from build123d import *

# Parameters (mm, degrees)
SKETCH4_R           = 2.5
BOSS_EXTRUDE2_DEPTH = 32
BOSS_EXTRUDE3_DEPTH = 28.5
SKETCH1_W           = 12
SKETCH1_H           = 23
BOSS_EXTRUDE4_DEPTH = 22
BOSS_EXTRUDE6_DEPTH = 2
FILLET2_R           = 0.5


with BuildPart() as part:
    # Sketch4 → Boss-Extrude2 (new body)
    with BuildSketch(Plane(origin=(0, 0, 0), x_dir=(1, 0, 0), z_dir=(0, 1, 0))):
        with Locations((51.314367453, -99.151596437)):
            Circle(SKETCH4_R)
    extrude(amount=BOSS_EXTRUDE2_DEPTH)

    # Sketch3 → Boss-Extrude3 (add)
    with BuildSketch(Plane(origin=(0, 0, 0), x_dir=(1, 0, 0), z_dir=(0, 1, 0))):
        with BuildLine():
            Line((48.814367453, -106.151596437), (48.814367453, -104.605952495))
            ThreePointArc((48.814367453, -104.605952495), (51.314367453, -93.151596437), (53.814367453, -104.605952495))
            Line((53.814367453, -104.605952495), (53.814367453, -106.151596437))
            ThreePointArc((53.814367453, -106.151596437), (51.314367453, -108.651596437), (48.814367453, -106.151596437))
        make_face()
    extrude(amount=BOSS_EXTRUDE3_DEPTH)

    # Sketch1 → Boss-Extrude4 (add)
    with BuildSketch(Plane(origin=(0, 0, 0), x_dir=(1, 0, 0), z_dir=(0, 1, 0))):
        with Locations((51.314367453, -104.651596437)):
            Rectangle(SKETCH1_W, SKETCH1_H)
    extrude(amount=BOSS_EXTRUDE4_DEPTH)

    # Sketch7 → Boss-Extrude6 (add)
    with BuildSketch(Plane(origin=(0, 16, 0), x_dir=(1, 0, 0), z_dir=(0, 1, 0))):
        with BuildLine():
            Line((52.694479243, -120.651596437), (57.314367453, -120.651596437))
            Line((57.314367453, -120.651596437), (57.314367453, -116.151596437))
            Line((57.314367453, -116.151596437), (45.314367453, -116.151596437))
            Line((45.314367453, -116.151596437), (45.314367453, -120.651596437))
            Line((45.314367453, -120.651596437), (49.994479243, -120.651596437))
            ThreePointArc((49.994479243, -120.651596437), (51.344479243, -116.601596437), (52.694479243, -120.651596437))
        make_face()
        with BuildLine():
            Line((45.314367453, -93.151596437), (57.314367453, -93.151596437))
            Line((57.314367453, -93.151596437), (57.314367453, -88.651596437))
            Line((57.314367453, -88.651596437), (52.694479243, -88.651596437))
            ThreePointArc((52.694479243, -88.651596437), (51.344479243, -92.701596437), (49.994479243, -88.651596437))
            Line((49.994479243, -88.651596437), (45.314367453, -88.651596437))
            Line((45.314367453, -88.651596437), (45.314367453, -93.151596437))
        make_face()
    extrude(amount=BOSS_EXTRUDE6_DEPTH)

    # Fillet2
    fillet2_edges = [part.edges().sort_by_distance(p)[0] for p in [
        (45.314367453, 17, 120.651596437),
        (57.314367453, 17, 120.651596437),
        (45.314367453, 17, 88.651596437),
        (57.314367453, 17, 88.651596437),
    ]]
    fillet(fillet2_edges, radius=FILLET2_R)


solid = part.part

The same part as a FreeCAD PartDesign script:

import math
import FreeCAD as App
import Part
import Sketcher
Q = App.Units.Quantity


def edges_at(feature, points):
    """Names of the edges that pass closest to the given points."""
    edges = feature.Shape.Edges
    near = lambda p: min(range(len(edges)), key=lambda i: edges[i].distToShape(Part.Vertex(*p))[0])
    return sorted({f"Edge{near(p) + 1}" for p in points})

doc = App.newDocument("Part")
params = doc.addObject("Spreadsheet::Sheet", "Params")
for row, (alias, value) in enumerate([
    ("sketch1_diameter", "5 mm"),
    ("pad1_length", "32 mm"),
    ("sketch2_radius", "6 mm"),
    ("sketch2_radius2", "2.5 mm"),
    ("pad2_length", "28.5 mm"),
    ("sketch3_width", "12 mm"),
    ("sketch3_height", "23 mm"),
    ("pad3_length", "22 mm"),
    ("sketch4_width", "12 mm"),
    ("sketch4_radius", "2.25 mm"),
    ("sketch4_height", "4.5 mm"),
    ("pad4_length", "2 mm"),
    ("fillet_radius", "0.5 mm"),
], start=1):
    params.set(f"A{row}", alias)
    params.set(f"B{row}", "=" + value)
    params.setAlias(f"B{row}", alias)

body = doc.addObject("PartDesign::Body", "Body")

# Sketch on XZ plane
sketch1 = body.newObject("Sketcher::SketchObject", "Sketch")
sketch1.AttachmentSupport = (doc.getObject("XZ_Plane"), [""])
sketch1.MapMode = "FlatFace"
sketch1.addGeometry(Part.Circle(App.Vector(51.3, 99.2, 0), App.Vector(0, 0, 1), 2.5), False)
sketch1.addConstraint([
    Sketcher.Constraint("Diameter", 0, Q("5 mm")),
    Sketcher.Constraint("DistanceX", -1, 1, 0, 3, Q("51.314367 mm")),
    Sketcher.Constraint("DistanceY", -1, 1, 0, 3, Q("99.151596 mm")),
])
sketch1.setExpression("Constraints[0]", "Params.sketch1_diameter")
pad1 = body.newObject("PartDesign::Pad", "Pad")
pad1.Profile = sketch1
pad1.setExpression("Length", "Params.pad1_length")
pad1.Reversed = True

# Sketch on XZ plane
sketch2 = body.newObject("Sketcher::SketchObject", "Sketch001")
sketch2.AttachmentSupport = (doc.getObject("XZ_Plane"), [""])
sketch2.MapMode = "FlatFace"
sketch2.addGeometry([
    Part.LineSegment(App.Vector(48.8, 104.6, 0), App.Vector(48.8, 106.2, 0)),
    Part.ArcOfCircle(Part.Circle(App.Vector(51.3, 106.2, 0), App.Vector(0, 0, 1), 2.5), math.radians(0), math.radians(180)),
    Part.LineSegment(App.Vector(53.8, 106.2, 0), App.Vector(53.8, 104.6, 0)),
    Part.ArcOfCircle(Part.Circle(App.Vector(51.3, 99.2, 0), App.Vector(0, 0, 1), 6), math.radians(115), math.radians(425)),
], False)
sketch2.addConstraint([
    Sketcher.Constraint("Tangent", 0, 2, 1, 2),
    Sketcher.Constraint("Tangent", 1, 1, 2, 1),
    Sketcher.Constraint("Coincident", 2, 2, 3, 2),
    Sketcher.Constraint("Coincident", 3, 1, 0, 1),
    Sketcher.Constraint("Vertical", 0),
    Sketcher.Constraint("Vertical", 2),
    Sketcher.Constraint("Horizontal", 2, 2, 3, 1),
    Sketcher.Constraint("Radius", 3, Q("6 mm")),
    Sketcher.Constraint("Radius", 1, Q("2.5 mm")),
    Sketcher.Constraint("DistanceY", 3, 3, 1, 3, Q("7 mm")),
    Sketcher.Constraint("DistanceX", -1, 1, 1, 3, Q("51.314367 mm")),
    Sketcher.Constraint("DistanceY", -1, 1, 1, 3, Q("106.151596 mm")),
])
sketch2.setExpression("Constraints[7]", "Params.sketch2_radius")
sketch2.setExpression("Constraints[8]", "Params.sketch2_radius2")
pad2 = body.newObject("PartDesign::Pad", "Pad001")
pad2.Profile = sketch2
pad2.setExpression("Length", "Params.pad2_length")
pad2.Reversed = True

# Sketch on XZ plane
sketch3 = body.newObject("Sketcher::SketchObject", "Sketch002")
sketch3.AttachmentSupport = (doc.getObject("XZ_Plane"), [""])
sketch3.MapMode = "FlatFace"
sketch3.addGeometry([
    Part.LineSegment(App.Vector(45, 93, 0), App.Vector(45, 116, 0)),
    Part.LineSegment(App.Vector(45, 116, 0), App.Vector(57, 116, 0)),
    Part.LineSegment(App.Vector(57, 116, 0), App.Vector(57, 93, 0)),
    Part.LineSegment(App.Vector(57, 93, 0), App.Vector(45, 93, 0)),
], False)
sketch3.addConstraint([
    Sketcher.Constraint("Coincident", 0, 2, 1, 1),
    Sketcher.Constraint("Coincident", 1, 2, 2, 1),
    Sketcher.Constraint("Coincident", 2, 2, 3, 1),
    Sketcher.Constraint("Coincident", 3, 2, 0, 1),
    Sketcher.Constraint("Vertical", 0),
    Sketcher.Constraint("Horizontal", 1),
    Sketcher.Constraint("Vertical", 2),
    Sketcher.Constraint("Horizontal", 3),
    Sketcher.Constraint("DistanceX", 1, 1, 1, 2, Q("12 mm")),
    Sketcher.Constraint("DistanceY", 0, 1, 0, 2, Q("23 mm")),
    Sketcher.Constraint("DistanceX", -1, 1, 0, 2, Q("45.314367 mm")),
    Sketcher.Constraint("DistanceY", -1, 1, 0, 2, Q("116.151596 mm")),
])
sketch3.setExpression("Constraints[8]", "Params.sketch3_width")
sketch3.setExpression("Constraints[9]", "Params.sketch3_height")
pad3 = body.newObject("PartDesign::Pad", "Pad002")
pad3.Profile = sketch3
pad3.setExpression("Length", "Params.pad3_length")
pad3.Reversed = True

# Sketch on XZ plane
sketch4 = body.newObject("Sketcher::SketchObject", "Sketch003")
sketch4.AttachmentSupport = (doc.getObject("XZ_Plane"), [""])
sketch4.MapMode = "FlatFace"
sketch4.AttachmentOffset = App.Placement(App.Vector(0, 0, -16), App.Rotation())
sketch4.addGeometry([
    Part.LineSegment(App.Vector(52.7, 120.7, 0), App.Vector(57.3, 120.7, 0)),  # 0
    Part.LineSegment(App.Vector(57.3, 120.7, 0), App.Vector(57.3, 116.2, 0)),  # 1
    Part.LineSegment(App.Vector(57.3, 116.2, 0), App.Vector(45.3, 116.2, 0)),  # 2
    Part.LineSegment(App.Vector(45.3, 116.2, 0), App.Vector(45.3, 120.7, 0)),  # 3
    Part.LineSegment(App.Vector(45.3, 120.7, 0), App.Vector(50, 120.7, 0)),  # 4
    Part.ArcOfCircle(Part.Circle(App.Vector(51.3, 118.9, 0), App.Vector(0, 0, 1), 2.2), math.radians(127), math.radians(413)),  # 5
    Part.LineSegment(App.Vector(45.3, 93.2, 0), App.Vector(57.3, 93.2, 0)),  # 6
    Part.LineSegment(App.Vector(57.3, 93.2, 0), App.Vector(57.3, 88.7, 0)),  # 7
    Part.LineSegment(App.Vector(57.3, 88.7, 0), App.Vector(52.7, 88.7, 0)),  # 8
    Part.ArcOfCircle(Part.Circle(App.Vector(51.3, 90.5, 0), App.Vector(0, 0, 1), 2.2), math.radians(-53), math.radians(233)),  # 9
    Part.LineSegment(App.Vector(50, 88.7, 0), App.Vector(45.3, 88.7, 0)),  # 10
    Part.LineSegment(App.Vector(45.3, 88.7, 0), App.Vector(45.3, 93.2, 0)),  # 11
], False)
sketch4.addConstraint([
    Sketcher.Constraint("Coincident", 0, 2, 1, 1),
    Sketcher.Constraint("Coincident", 1, 2, 2, 1),
    Sketcher.Constraint("Coincident", 2, 2, 3, 1),
    Sketcher.Constraint("Coincident", 3, 2, 4, 1),
    Sketcher.Constraint("Coincident", 4, 2, 5, 1),
    Sketcher.Constraint("Coincident", 5, 2, 0, 1),
    Sketcher.Constraint("Coincident", 6, 2, 7, 1),
    Sketcher.Constraint("Coincident", 7, 2, 8, 1),
    Sketcher.Constraint("Coincident", 8, 2, 9, 1),
    Sketcher.Constraint("Coincident", 9, 2, 10, 1),
    Sketcher.Constraint("Coincident", 10, 2, 11, 1),
    Sketcher.Constraint("Coincident", 11, 2, 6, 1),
    Sketcher.Constraint("Horizontal", 0),
    Sketcher.Constraint("Vertical", 1),
    Sketcher.Constraint("Horizontal", 2),
    Sketcher.Constraint("Vertical", 3),
    Sketcher.Constraint("Horizontal", 4),
    Sketcher.Constraint("Horizontal", 6),
    Sketcher.Constraint("Vertical", 7),
    Sketcher.Constraint("Horizontal", 8),
    Sketcher.Constraint("Horizontal", 10),
    Sketcher.Constraint("Vertical", 11),
    Sketcher.Constraint("Equal", 5, 9),
    Sketcher.Constraint("Horizontal", 0, 2, 3, 2),
    Sketcher.Constraint("Horizontal", 8, 2, 9, 2),
    Sketcher.Constraint("Vertical", 5, 3, 9, 3),
    Sketcher.Constraint("Vertical", 1, 2, 6, 2),
    Sketcher.Constraint("Vertical", 5, 2, 8, 2),
    Sketcher.Constraint("Vertical", 3, 2, 10, 2),
    Sketcher.Constraint("Equal", 3, 7),
    Sketcher.Constraint("DistanceX", 2, 2, 2, 1, Q("12 mm")),
    Sketcher.Constraint("Radius", 5, Q("2.25 mm")),
    Sketcher.Constraint("DistanceY", 1, 2, 1, 1, Q("4.5 mm")),
    Sketcher.Constraint("DistanceY", 6, 2, 1, 2, Q("23 mm")),
    Sketcher.Constraint("DistanceY", 9, 3, 5, 3, Q("28.4 mm")),
    Sketcher.Constraint("DistanceX", 0, 1, 0, 2, Q("4.619888 mm")),
    Sketcher.Constraint("DistanceX", -1, 1, 5, 3, Q("51.344479 mm")),
    Sketcher.Constraint("DistanceY", -1, 1, 5, 3, Q("118.851596 mm")),
])
sketch4.setExpression("Constraints[30]", "Params.sketch4_width")
sketch4.setExpression("Constraints[31]", "Params.sketch4_radius")
sketch4.setExpression("Constraints[32]", "Params.sketch4_height")
pad4 = body.newObject("PartDesign::Pad", "Pad003")
pad4.Profile = sketch4
pad4.setExpression("Length", "Params.pad4_length")
pad4.Reversed = True
doc.recompute()

fillet = body.newObject("PartDesign::Fillet", "Fillet")
fillet.Base = (pad4, edges_at(pad4, [
    (45.314, 17, 120.652),
    (57.314, 17, 120.652),
    (45.314, 17, 88.652),
    (57.314, 17, 88.652),
]))
fillet.setExpression("Radius", "Params.fillet_radius")

doc.recompute()
